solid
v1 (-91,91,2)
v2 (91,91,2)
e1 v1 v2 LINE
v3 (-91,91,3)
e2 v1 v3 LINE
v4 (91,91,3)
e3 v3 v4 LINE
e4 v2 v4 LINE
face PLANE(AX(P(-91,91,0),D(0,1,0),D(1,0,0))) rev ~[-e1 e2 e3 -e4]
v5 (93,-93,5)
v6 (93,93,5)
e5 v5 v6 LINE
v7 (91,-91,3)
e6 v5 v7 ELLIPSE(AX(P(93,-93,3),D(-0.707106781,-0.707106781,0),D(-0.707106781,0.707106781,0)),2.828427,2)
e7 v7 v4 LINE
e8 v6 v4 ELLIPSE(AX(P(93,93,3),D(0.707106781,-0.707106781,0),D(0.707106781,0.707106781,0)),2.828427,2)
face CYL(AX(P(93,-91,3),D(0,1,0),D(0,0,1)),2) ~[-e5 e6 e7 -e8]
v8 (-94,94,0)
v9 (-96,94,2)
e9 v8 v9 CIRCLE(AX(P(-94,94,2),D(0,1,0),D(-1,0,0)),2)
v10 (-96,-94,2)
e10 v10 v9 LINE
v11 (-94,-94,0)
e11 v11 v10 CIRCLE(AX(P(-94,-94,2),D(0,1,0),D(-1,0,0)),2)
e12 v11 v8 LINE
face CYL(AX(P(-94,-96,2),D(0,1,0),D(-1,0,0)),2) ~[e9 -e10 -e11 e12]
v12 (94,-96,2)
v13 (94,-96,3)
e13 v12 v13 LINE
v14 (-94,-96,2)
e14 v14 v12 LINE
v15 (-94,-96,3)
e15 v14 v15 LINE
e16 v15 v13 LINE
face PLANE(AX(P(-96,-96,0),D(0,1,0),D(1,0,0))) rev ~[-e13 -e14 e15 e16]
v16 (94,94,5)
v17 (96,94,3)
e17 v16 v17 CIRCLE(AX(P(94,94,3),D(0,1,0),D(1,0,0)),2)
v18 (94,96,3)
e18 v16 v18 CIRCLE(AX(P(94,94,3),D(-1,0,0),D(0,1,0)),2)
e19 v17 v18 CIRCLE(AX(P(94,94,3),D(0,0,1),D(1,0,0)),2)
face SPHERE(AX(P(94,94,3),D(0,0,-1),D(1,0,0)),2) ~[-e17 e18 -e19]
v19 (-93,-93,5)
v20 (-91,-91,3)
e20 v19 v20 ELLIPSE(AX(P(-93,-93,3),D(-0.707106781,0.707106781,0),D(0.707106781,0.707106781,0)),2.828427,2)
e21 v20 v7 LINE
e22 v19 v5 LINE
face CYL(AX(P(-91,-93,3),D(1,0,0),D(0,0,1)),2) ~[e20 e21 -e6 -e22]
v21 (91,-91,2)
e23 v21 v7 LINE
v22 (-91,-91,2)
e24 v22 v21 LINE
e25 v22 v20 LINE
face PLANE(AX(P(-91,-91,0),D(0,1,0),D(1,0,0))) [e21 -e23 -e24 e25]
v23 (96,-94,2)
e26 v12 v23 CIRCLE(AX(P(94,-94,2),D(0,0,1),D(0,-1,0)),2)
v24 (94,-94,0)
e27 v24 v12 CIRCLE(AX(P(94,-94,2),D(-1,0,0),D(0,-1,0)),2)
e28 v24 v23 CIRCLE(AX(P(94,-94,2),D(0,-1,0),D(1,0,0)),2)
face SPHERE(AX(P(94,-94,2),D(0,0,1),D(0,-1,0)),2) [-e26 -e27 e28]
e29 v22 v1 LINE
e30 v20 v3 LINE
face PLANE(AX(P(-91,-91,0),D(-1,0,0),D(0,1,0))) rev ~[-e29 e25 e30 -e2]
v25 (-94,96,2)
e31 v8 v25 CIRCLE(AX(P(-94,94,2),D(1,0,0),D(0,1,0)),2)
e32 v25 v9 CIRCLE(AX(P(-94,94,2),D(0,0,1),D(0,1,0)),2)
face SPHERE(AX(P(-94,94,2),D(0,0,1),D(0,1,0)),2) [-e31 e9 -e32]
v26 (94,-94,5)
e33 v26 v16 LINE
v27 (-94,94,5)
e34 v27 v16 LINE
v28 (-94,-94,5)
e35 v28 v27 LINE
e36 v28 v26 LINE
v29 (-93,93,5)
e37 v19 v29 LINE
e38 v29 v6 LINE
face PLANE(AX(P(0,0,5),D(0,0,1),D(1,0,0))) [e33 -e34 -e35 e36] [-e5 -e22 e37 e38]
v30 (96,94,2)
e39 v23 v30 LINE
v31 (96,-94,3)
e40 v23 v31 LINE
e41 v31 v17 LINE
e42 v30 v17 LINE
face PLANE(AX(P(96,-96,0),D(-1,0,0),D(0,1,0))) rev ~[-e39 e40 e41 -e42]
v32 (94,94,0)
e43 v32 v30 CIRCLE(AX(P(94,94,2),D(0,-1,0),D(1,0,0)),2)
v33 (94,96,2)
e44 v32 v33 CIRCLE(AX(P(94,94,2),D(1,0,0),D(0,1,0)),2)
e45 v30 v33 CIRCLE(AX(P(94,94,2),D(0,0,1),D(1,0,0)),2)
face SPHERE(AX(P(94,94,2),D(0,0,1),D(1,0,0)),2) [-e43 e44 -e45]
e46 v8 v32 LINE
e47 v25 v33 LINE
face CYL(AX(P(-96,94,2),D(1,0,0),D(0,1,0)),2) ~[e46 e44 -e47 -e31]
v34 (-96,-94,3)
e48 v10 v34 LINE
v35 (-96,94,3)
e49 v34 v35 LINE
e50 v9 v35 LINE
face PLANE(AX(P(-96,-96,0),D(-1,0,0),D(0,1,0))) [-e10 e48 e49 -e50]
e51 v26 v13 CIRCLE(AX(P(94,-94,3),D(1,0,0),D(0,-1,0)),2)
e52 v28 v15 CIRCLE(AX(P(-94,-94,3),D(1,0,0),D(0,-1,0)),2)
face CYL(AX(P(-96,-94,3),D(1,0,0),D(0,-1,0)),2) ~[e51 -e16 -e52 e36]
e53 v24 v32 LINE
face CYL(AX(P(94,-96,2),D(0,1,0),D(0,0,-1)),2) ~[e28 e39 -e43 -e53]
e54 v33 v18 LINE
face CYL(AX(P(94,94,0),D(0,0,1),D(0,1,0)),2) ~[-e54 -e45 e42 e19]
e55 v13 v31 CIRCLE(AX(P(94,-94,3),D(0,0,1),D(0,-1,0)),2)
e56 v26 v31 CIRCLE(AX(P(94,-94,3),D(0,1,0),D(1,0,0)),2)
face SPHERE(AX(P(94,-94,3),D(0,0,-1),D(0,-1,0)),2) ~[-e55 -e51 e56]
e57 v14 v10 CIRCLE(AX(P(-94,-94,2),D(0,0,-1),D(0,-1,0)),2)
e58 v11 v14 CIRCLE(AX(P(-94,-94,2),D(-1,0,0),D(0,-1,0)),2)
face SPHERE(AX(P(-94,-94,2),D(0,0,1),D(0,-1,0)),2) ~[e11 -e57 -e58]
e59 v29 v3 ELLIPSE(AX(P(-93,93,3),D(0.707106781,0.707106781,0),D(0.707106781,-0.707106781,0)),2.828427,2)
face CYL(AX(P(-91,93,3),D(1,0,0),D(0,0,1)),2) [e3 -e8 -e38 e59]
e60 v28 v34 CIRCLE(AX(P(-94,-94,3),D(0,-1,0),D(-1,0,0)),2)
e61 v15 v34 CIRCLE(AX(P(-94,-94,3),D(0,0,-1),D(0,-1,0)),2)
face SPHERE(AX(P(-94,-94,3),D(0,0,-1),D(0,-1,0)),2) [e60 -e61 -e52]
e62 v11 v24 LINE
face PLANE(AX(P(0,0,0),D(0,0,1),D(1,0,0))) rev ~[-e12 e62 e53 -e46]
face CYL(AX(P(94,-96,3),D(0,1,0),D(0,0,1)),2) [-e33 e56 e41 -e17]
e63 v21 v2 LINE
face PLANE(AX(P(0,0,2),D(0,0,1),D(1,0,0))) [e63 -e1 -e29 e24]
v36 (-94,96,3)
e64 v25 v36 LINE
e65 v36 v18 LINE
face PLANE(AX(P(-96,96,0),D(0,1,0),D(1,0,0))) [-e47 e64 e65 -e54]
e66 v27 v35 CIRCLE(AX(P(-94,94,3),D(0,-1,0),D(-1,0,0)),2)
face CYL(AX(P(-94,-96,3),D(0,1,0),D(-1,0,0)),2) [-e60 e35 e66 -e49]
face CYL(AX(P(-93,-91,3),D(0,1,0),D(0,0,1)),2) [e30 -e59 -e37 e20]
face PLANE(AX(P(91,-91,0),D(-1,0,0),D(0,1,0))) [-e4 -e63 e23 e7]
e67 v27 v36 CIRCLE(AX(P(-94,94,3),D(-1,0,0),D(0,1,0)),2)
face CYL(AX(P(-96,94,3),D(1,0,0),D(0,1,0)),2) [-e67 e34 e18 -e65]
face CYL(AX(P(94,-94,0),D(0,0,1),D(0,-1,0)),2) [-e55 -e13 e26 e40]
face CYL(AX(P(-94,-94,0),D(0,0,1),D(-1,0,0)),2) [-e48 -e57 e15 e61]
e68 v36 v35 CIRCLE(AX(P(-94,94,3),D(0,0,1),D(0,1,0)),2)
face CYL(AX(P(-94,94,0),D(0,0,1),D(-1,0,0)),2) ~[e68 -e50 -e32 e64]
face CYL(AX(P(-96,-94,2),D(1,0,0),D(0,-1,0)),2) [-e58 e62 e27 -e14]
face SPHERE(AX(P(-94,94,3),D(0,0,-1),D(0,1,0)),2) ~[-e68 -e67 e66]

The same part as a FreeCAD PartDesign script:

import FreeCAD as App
import Part
import Sketcher
from FreeCAD import Vector
Q = App.Units.Quantity


def edges_at(feature, points):
    """Names of the edges that pass closest to the given points."""
    edges = feature.Shape.Edges
    near = lambda p: min(range(len(edges)), key=lambda i: edges[i].distToShape(Part.Vertex(*p))[0])
    return sorted({f"Edge{near(p) + 1}" for p in points})

doc = App.newDocument("Part")
body = doc.addObject("PartDesign::Body", "Body")

# Sketch on XY plane
sketch1 = doc.addObject("Sketcher::SketchObject", "Sketch")
body.addObject(sketch1)
sketch1.AttachmentSupport = (doc.XY_Plane, [""])
sketch1.MapMode = "FlatFace"
sketch1.addGeometry(Part.LineSegment(Vector(-91, 91, 0), Vector(-91, -91, 0)), False)
sketch1.addGeometry(Part.LineSegment(Vector(-91, -91, 0), Vector(91, -91, 0)), False)
sketch1.addGeometry(Part.LineSegment(Vector(91, -91, 0), Vector(91, 91, 0)), False)
sketch1.addGeometry(Part.LineSegment(Vector(91, 91, 0), Vector(-91, 91, 0)), False)
sketch1.addConstraint(Sketcher.Constraint("Coincident", 0, 2, 1, 1))
sketch1.addConstraint(Sketcher.Constraint("Coincident", 1, 2, 2, 1))
sketch1.addConstraint(Sketcher.Constraint("Coincident", 2, 2, 3, 1))
sketch1.addConstraint(Sketcher.Constraint("Coincident", 3, 2, 0, 1))
sketch1.addConstraint(Sketcher.Constraint("Vertical", 0))
sketch1.addConstraint(Sketcher.Constraint("Horizontal", 1))
sketch1.addConstraint(Sketcher.Constraint("Vertical", 2))
sketch1.addConstraint(Sketcher.Constraint("Horizontal", 3))
sketch1.addConstraint(Sketcher.Constraint("Symmetric", 0, 2, 2, 2, -1, 1))
sketch1.addConstraint(Sketcher.Constraint("Equal", 3, 0))
sketch1.addConstraint(Sketcher.Constraint("DistanceX", 1, 1, 1, 2, Q("182 mm")))
pad1 = doc.addObject("PartDesign::Pad", "Pad")
body.addObject(pad1)
pad1.Profile = sketch1
pad1.Length = 2

# Sketch on XY plane
sketch2 = doc.addObject("Sketcher::SketchObject", "Sketch001")
body.addObject(sketch2)
sketch2.AttachmentSupport = (doc.XY_Plane, [""])
sketch2.MapMode = "FlatFace"
sketch2.addGeometry(Part.LineSegment(Vector(-96, 96, 0), Vector(-96, -96, 0)), False)
sketch2.addGeometry(Part.LineSegment(Vector(-96, -96, 0), Vector(96, -96, 0)), False)
sketch2.addGeometry(Part.LineSegment(Vector(96, -96, 0), Vector(96, 96, 0)), False)
sketch2.addGeometry(Part.LineSegment(Vector(96, 96, 0), Vector(-96, 96, 0)), False)
sketch2.addGeometry(Part.LineSegment(Vector(91, -91, 0), Vector(-91, -91, 0)), False)
sketch2.addGeometry(Part.LineSegment(Vector(-91, -91, 0), Vector(-91, 91, 0)), False)
sketch2.addGeometry(Part.LineSegment(Vector(-91, 91, 0), Vector(91, 91, 0)), False)
sketch2.addGeometry(Part.LineSegment(Vector(91, 91, 0), Vector(91, -91, 0)), False)
sketch2.addConstraint(Sketcher.Constraint("Coincident", 0, 2, 1, 1))
sketch2.addConstraint(Sketcher.Constraint("Coincident", 1, 2, 2, 1))
sketch2.addConstraint(Sketcher.Constraint("Coincident", 2, 2, 3, 1))
sketch2.addConstraint(Sketcher.Constraint("Coincident", 3, 2, 0, 1))
sketch2.addConstraint(Sketcher.Constraint("Coincident", 4, 2, 5, 1))
sketch2.addConstraint(Sketcher.Constraint("Coincident", 5, 2, 6, 1))
sketch2.addConstraint(Sketcher.Constraint("Coincident", 6, 2, 7, 1))
sketch2.addConstraint(Sketcher.Constraint("Coincident", 7, 2, 4, 1))
sketch2.addConstraint(Sketcher.Constraint("Vertical", 0))
sketch2.addConstraint(Sketcher.Constraint("Horizontal", 1))
sketch2.addConstraint(Sketcher.Constraint("Vertical", 2))
sketch2.addConstraint(Sketcher.Constraint("Horizontal", 3))
sketch2.addConstraint(Sketcher.Constraint("Horizontal", 4))
sketch2.addConstraint(Sketcher.Constraint("Vertical", 5))
sketch2.addConstraint(Sketcher.Constraint("Horizontal", 6))
sketch2.addConstraint(Sketcher.Constraint("Vertical", 7))
sketch2.addConstraint(Sketcher.Constraint("Symmetric", 0, 2, 2, 2, -1, 1))
sketch2.addConstraint(Sketcher.Constraint("Symmetric", 4, 2, 6, 2, -1, 1))
sketch2.addConstraint(Sketcher.Constraint("Equal", 3, 0))
sketch2.addConstraint(Sketcher.Constraint("Equal", 6, 5))
sketch2.addConstraint(Sketcher.Constraint("DistanceX", 1, 1, 1, 2, Q("192 mm")))
sketch2.addConstraint(Sketcher.Constraint("DistanceX", 4, 2, 4, 1, Q("182 mm")))
pad2 = doc.addObject("PartDesign::Pad", "Pad001")
body.addObject(pad2)
pad2.Profile = sketch2
pad2.Length = 5
doc.recompute()

fillet = doc.addObject("PartDesign::Fillet", "Fillet")
body.addObject(fillet)
fillet.Base = (pad2, edges_at(pad2, [
    (-96, -96, 2.5),
    (96, -96, 2.5),
    (0, -96, 0),
    (0, -96, 5),
    (96, 96, 2.5),
    (96, 0, 0),
    (96, 0, 5),
    (-96, 96, 2.5),
    (0, 96, 0),
    (0, 96, 5),
    (-96, 0, 0),
    (-96, 0, 5),
    (0, 91, 5),
    (91, 0, 5),
    (0, -91, 5),
    (-91, 0, 5),
]))
fillet.Radius = 2

doc.recompute()
